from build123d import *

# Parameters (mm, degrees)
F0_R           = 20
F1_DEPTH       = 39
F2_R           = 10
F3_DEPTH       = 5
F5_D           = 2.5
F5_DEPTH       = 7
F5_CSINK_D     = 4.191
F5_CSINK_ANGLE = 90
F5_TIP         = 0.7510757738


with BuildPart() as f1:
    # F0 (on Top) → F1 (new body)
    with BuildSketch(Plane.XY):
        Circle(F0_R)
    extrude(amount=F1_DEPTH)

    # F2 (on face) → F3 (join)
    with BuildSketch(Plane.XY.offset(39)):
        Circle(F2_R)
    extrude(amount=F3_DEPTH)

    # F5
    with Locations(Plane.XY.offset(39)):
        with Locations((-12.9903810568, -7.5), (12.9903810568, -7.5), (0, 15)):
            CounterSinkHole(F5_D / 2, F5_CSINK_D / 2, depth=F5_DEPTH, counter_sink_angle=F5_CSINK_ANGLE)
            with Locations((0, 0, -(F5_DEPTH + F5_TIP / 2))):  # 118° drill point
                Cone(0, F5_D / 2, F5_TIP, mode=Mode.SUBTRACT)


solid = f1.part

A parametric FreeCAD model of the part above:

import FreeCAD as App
import Part
import Sketcher
from FreeCAD import Vector
Q = App.Units.Quantity

doc = App.newDocument("Part")
body = doc.addObject("PartDesign::Body", "Body")

# Sketch on XY plane
sketch1 = body.newObject("Sketcher::SketchObject", "Sketch")
sketch1.AttachmentSupport = (doc.getObject("XY_Plane"), [""])
sketch1.MapMode = "FlatFace"
sketch1.addGeometry(Part.Circle(Vector(0, 0, 0), Vector(0, 0, 1), 20), False)
sketch1.addConstraint([
    Sketcher.Constraint("Coincident", 0, 3, -1, 1),
    Sketcher.Constraint("Diameter", 0, Q("40 mm")),
])
pad1 = body.newObject("PartDesign::Pad", "Pad")
pad1.Profile = sketch1
pad1.Length = 39

# Sketch on XY plane
sketch2 = body.newObject("Sketcher::SketchObject", "Sketch001")
sketch2.AttachmentSupport = (doc.getObject("XY_Plane"), [""])
sketch2.MapMode = "FlatFace"
sketch2.AttachmentOffset = App.Placement(Vector(0, 0, 39), App.Rotation())
sketch2.addGeometry(Part.Circle(Vector(0, 0, 0), Vector(0, 0, 1), 10), False)
sketch2.addConstraint([
    Sketcher.Constraint("Coincident", 0, 3, -1, 1),
    Sketcher.Constraint("Diameter", 0, Q("20 mm")),
])
pad2 = body.newObject("PartDesign::Pad", "Pad001")
pad2.Profile = sketch2
pad2.Length = 5

# Sketch on XY plane
sketch3 = body.newObject("Sketcher::SketchObject", "Sketch002")
sketch3.AttachmentSupport = (doc.getObject("XY_Plane"), [""])
sketch3.MapMode = "FlatFace"
sketch3.AttachmentOffset = App.Placement(Vector(0, 0, 39), App.Rotation())
sketch3.addGeometry([
    Part.Circle(Vector(-13, -7.5, 0), Vector(0, 0, 1), 1.2),
    Part.Circle(Vector(13, -7.5, 0), Vector(0, 0, 1), 1.2),
    Part.Circle(Vector(0, 15, 0), Vector(0, 0, 1), 1.2),
], False)
sketch3.addConstraint([
    Sketcher.Constraint("Equal", 0, 1),
    Sketcher.Constraint("Equal", 1, 2),
    Sketcher.Constraint("Symmetric", 0, 3, 1, 3, -2),
    Sketcher.Constraint("PointOnObject", 2, 3, -2),
    Sketcher.Constraint("Diameter", 0, Q("2.5 mm")),
    Sketcher.Constraint("DistanceY", -1, 1, 2, 3, Q("15 mm")),
    Sketcher.Constraint("DistanceY", 0, 3, -1, 1, Q("7.5 mm")),
    Sketcher.Constraint("DistanceX", 0, 3, -1, 1, Q("12.990381 mm")),
])
doc.recompute()
hole = body.newObject("PartDesign::Hole", "Hole")
hole.Profile = sketch3
hole.ThreadType = "None"
hole.Diameter = 2.5
hole.DepthType = "Dimension"
hole.Depth = 7
hole.DrillPoint = "Angled"
hole.DrillPointAngle = 118
hole.HoleCutType = "Countersink"
hole.HoleCutDiameter = 4.191
hole.HoleCutCountersinkAngle = 90

doc.recompute()
